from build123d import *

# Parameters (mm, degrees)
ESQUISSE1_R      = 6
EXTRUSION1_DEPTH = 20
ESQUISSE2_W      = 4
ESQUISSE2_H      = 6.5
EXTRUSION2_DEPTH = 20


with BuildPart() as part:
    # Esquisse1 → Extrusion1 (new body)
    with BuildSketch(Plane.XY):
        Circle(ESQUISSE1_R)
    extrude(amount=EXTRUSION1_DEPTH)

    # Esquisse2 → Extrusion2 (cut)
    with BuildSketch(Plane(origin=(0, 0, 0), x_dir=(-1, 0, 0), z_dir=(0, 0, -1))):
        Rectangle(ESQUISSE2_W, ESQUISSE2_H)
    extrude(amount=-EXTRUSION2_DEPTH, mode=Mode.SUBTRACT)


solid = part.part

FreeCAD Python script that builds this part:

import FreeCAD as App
import Part
import Sketcher

V = App.Vector

doc = App.newDocument("Part")
body = doc.addObject("PartDesign::Body", "Body")

# Sketch on XY plane
sketch1 = body.newObject("Sketcher::SketchObject", "Sketch")
sketch1.AttachmentSupport = (doc.getObject("XY_Plane"), [""])
sketch1.MapMode = "FlatFace"
sketch1.addGeometry(Part.Circle(V(0, 0, 0), V(0, 0, 1), 6), False)
sketch1.addConstraint(Sketcher.Constraint("Coincident", 0, 3, -1, 1))
sketch1.addConstraint(Sketcher.Constraint("Diameter", 0, 12.0))
pad1 = body.newObject("PartDesign::Pad", "Pad")
pad1.Profile = sketch1
pad1.Length = 20

# Sketch on XY plane
sketch2 = body.newObject("Sketcher::SketchObject", "Sketch001")
sketch2.AttachmentSupport = (doc.getObject("XY_Plane"), [""])
sketch2.MapMode = "FlatFace"
sketch2.addGeometry(Part.LineSegment(V(2, 3.25, 0), V(2, -3.25, 0)), False)
sketch2.addGeometry(Part.LineSegment(V(2, -3.25, 0), V(-2, -3.25, 0)), False)
sketch2.addGeometry(Part.LineSegment(V(-2, -3.25, 0), V(-2, 3.25, 0)), False)
sketch2.addGeometry(Part.LineSegment(V(-2, 3.25, 0), V(2, 3.25, 0)), False)
sketch2.addConstraint(Sketcher.Constraint("Coincident", 0, 2, 1, 1))
sketch2.addConstraint(Sketcher.Constraint("Coincident", 1, 2, 2, 1))
sketch2.addConstraint(Sketcher.Constraint("Coincident", 2, 2, 3, 1))
sketch2.addConstraint(Sketcher.Constraint("Coincident", 3, 2, 0, 1))
sketch2.addConstraint(Sketcher.Constraint("Vertical", 0))
sketch2.addConstraint(Sketcher.Constraint("Horizontal", 1))
sketch2.addConstraint(Sketcher.Constraint("Vertical", 2))
sketch2.addConstraint(Sketcher.Constraint("Horizontal", 3))
sketch2.addConstraint(Sketcher.Constraint("Symmetric", 0, 2, 2, 2, -1, 1))
sketch2.addConstraint(Sketcher.Constraint("DistanceX", 1, 2, 1, 1, 4.0))
sketch2.addConstraint(Sketcher.Constraint("DistanceY", 0, 2, 0, 1, 6.5))
pocket1 = body.newObject("PartDesign::Pocket", "Pocket")
pocket1.Profile = sketch2
pocket1.Length = 20
pocket1.Reversed = True

doc.recompute()
